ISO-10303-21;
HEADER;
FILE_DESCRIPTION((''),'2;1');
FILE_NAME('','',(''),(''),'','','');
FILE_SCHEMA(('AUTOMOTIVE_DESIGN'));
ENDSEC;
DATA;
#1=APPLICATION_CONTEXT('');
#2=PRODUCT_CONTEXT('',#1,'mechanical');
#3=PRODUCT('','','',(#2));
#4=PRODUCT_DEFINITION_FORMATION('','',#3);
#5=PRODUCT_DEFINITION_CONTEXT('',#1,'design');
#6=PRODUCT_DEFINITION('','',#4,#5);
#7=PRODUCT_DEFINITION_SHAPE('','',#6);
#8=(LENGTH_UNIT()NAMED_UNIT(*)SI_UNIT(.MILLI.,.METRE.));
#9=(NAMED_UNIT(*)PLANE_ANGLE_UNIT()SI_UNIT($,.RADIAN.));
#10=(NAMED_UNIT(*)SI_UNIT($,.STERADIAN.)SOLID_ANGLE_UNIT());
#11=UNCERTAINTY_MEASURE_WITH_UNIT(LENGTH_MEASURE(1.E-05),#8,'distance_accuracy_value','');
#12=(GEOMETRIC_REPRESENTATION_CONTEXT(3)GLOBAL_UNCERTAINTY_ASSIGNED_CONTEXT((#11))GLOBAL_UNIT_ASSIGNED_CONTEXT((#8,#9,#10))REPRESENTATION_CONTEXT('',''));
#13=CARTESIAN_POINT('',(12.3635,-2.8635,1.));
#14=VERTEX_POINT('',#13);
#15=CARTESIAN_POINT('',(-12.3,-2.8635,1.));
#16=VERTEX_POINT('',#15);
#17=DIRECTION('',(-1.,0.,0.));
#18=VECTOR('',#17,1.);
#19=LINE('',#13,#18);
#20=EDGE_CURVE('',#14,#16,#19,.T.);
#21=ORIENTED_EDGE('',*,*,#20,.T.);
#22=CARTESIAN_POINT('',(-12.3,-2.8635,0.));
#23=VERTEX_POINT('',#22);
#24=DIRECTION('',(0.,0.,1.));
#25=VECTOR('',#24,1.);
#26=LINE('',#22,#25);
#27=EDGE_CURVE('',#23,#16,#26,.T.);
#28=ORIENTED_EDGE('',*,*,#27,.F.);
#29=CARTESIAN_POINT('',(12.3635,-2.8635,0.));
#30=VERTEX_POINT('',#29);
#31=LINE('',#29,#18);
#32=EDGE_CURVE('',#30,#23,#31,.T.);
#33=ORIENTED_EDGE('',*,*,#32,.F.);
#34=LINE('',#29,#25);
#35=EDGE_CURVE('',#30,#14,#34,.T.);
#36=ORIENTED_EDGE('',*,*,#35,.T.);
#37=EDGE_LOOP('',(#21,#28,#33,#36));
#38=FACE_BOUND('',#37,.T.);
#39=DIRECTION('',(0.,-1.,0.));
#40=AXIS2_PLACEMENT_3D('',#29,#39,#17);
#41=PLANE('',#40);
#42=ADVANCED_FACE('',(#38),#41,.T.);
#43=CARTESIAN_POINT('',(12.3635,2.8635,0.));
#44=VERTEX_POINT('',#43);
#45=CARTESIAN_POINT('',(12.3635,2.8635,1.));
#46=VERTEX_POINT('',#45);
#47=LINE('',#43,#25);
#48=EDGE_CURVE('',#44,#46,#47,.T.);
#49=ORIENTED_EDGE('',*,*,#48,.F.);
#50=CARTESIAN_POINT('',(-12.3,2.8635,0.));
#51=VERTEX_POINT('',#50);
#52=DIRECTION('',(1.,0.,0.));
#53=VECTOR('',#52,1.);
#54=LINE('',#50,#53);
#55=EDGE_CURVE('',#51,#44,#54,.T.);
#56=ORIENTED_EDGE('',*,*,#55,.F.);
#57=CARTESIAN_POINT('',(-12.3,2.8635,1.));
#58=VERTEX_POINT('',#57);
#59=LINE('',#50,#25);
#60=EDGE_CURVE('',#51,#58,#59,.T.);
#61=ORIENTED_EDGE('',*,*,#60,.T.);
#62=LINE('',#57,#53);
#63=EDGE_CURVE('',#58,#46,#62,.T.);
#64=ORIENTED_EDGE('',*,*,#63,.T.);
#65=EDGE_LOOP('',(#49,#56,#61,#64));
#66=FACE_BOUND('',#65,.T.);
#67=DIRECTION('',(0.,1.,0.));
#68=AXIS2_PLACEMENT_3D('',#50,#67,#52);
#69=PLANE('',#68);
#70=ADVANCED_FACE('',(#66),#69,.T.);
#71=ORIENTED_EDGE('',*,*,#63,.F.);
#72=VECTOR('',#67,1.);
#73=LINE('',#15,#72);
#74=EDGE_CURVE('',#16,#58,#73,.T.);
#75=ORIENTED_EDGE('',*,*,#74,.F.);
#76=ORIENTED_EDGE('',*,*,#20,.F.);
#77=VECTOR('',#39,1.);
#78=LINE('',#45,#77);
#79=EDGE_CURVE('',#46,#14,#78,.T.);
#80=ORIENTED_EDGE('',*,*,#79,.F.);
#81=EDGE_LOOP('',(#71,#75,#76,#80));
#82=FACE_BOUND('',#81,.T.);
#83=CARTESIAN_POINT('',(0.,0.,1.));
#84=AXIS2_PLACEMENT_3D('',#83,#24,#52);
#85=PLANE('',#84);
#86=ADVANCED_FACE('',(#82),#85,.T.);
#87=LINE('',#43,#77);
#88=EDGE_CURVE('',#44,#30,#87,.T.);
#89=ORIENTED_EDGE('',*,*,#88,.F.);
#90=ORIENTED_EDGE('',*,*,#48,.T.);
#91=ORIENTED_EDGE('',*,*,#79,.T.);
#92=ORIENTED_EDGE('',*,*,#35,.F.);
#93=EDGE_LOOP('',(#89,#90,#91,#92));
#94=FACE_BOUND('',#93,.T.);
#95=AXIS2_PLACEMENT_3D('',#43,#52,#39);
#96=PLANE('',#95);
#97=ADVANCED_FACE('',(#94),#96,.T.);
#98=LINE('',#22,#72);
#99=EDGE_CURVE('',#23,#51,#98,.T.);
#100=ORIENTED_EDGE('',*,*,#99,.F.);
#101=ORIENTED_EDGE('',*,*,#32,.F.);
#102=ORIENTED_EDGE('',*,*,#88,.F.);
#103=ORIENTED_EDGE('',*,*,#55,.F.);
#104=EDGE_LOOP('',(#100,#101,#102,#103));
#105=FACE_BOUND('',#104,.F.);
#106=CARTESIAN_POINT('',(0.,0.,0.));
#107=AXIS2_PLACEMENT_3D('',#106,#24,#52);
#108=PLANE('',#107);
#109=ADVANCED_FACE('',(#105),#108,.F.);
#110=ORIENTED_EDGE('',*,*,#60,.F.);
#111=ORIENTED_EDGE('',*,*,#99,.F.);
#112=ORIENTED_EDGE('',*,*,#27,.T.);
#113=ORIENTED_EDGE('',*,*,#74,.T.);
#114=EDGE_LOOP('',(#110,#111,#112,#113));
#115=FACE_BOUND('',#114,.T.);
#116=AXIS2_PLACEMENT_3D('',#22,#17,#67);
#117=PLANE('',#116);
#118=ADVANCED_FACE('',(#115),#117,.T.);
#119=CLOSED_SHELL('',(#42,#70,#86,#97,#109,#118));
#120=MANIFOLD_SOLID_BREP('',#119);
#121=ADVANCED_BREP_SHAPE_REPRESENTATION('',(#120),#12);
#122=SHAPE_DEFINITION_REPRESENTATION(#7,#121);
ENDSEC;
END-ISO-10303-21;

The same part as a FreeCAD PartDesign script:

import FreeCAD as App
import Part
import Sketcher


def add_polygon(sketch, points):
    """Adds a closed chain of lines whose ends are joined by coincident constraints."""
    first, n = sketch.GeometryCount, len(points)
    for a, b in zip(points, points[1:] + points[:1]):
        sketch.addGeometry(Part.LineSegment(App.Vector(*a, 0), App.Vector(*b, 0)), False)
    for i in range(n):
        sketch.addConstraint(Sketcher.Constraint("Coincident", first + i, 2, first + (i + 1) % n, 1))

doc = App.newDocument("Part")
body = doc.addObject("PartDesign::Body", "Body")

# Sketch on XY plane
sketch1 = body.newObject("Sketcher::SketchObject", "Sketch")
sketch1.AttachmentSupport = (doc.getObject("XY_Plane"), [""])
sketch1.MapMode = "FlatFace"
add_polygon(sketch1, [(12, 3), (-12, 3), (-12, -3), (12, -3)])  # lines 0-3
sketch1.addConstraint(Sketcher.Constraint("Horizontal", 0))
sketch1.addConstraint(Sketcher.Constraint("Vertical", 1))
sketch1.addConstraint(Sketcher.Constraint("Horizontal", 2))
sketch1.addConstraint(Sketcher.Constraint("Vertical", 3))
sketch1.addConstraint(Sketcher.Constraint("DistanceX", 0, 2, -1, 1, 12.3))
sketch1.addConstraint(Sketcher.Constraint("DistanceY", 1, 2, 1, 1, 5.727))
sketch1.addConstraint(Sketcher.Constraint("DistanceX", 0, 2, 0, 1, 24.6635))
sketch1.addConstraint(Sketcher.Constraint("DistanceY", -1, 1, 0, 2, 2.8635))
pad1 = body.newObject("PartDesign::Pad", "Pad")
pad1.Profile = sketch1
pad1.Length = 1

doc.recompute()
